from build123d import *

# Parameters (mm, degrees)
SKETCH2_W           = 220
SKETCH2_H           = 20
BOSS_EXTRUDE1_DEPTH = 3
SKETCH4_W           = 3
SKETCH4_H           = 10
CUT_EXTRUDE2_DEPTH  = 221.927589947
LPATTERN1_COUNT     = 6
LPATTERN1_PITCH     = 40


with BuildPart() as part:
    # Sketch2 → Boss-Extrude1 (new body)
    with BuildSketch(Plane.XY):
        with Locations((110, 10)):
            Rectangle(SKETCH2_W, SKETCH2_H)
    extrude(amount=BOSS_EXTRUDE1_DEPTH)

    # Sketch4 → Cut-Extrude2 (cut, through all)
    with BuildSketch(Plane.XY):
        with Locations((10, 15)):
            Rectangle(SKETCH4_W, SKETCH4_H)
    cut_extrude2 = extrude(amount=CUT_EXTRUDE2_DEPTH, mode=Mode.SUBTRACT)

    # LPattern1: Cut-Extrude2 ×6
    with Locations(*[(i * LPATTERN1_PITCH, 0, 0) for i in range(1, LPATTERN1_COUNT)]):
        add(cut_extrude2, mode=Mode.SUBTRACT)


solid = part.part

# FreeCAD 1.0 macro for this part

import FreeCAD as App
import Part
import Sketcher

V = App.Vector
Q = App.Units.Quantity

doc = App.newDocument("Part")
params = doc.addObject("Spreadsheet::Sheet", "Params")
for row, (alias, value) in enumerate([
    ("sketch1_width", "220 mm"),
    ("sketch1_height", "20 mm"),
    ("pad1_length", "3 mm"),
    ("sketch2_width", "3 mm"),
    ("sketch2_height", "10 mm"),
    ("linearpattern_pitch", "40 mm"),
], start=1):
    params.set(f"A{row}", alias)
    params.set(f"B{row}", "=" + value)
    params.setAlias(f"B{row}", alias)

body = doc.addObject("PartDesign::Body", "Body")

sketch1 = doc.addObject("Sketcher::SketchObject", "Sketch")
body.addObject(sketch1)
sketch1.AttachmentSupport = (doc.XY_Plane, [""])
sketch1.MapMode = "FlatFace"
sketch1.addGeometry([
    Part.LineSegment(V(0, 20, 0), V(0, 0, 0)),
    Part.LineSegment(V(0, 0, 0), V(220, 0, 0)),
    Part.LineSegment(V(220, 0, 0), V(220, 20, 0)),
    Part.LineSegment(V(220, 20, 0), V(0, 20, 0)),
], False)
sketch1.addConstraint([
    Sketcher.Constraint("Coincident", 0, 2, 1, 1),
    Sketcher.Constraint("Coincident", 1, 2, 2, 1),
    Sketcher.Constraint("Coincident", 2, 2, 3, 1),
    Sketcher.Constraint("Coincident", 3, 2, 0, 1),
    Sketcher.Constraint("Vertical", 0),
    Sketcher.Constraint("Horizontal", 1),
    Sketcher.Constraint("Vertical", 2),
    Sketcher.Constraint("Horizontal", 3),
    Sketcher.Constraint("Coincident", 0, 2, -1, 1),
    Sketcher.Constraint("DistanceX", 1, 1, 1, 2, Q("220 mm")),
    Sketcher.Constraint("DistanceY", 0, 2, 0, 1, Q("20 mm")),
])
sketch1.setExpression("Constraints[9]", "Params.sketch1_width")
sketch1.setExpression("Constraints[10]", "Params.sketch1_height")
pad1 = doc.addObject("PartDesign::Pad", "Pad")
body.addObject(pad1)
pad1.Profile = sketch1
pad1.setExpression("Length", "Params.pad1_length")

sketch2 = doc.addObject("Sketcher::SketchObject", "Sketch001")
body.addObject(sketch2)
sketch2.AttachmentSupport = (doc.XY_Plane, [""])
sketch2.MapMode = "FlatFace"
sketch2.addGeometry([
    Part.LineSegment(V(8.5, 20, 0), V(8.5, 10, 0)),
    Part.LineSegment(V(8.5, 10, 0), V(11.5, 10, 0)),
    Part.LineSegment(V(11.5, 10, 0), V(11.5, 20, 0)),
    Part.LineSegment(V(11.5, 20, 0), V(8.5, 20, 0)),
], False)
sketch2.addConstraint([
    Sketcher.Constraint("Coincident", 0, 2, 1, 1),
    Sketcher.Constraint("Coincident", 1, 2, 2, 1),
    Sketcher.Constraint("Coincident", 2, 2, 3, 1),
    Sketcher.Constraint("Coincident", 3, 2, 0, 1),
    Sketcher.Constraint("Vertical", 0),
    Sketcher.Constraint("Horizontal", 1),
    Sketcher.Constraint("Vertical", 2),
    Sketcher.Constraint("Horizontal", 3),
    Sketcher.Constraint("DistanceX", 1, 1, 1, 2, Q("3 mm")),
    Sketcher.Constraint("DistanceY", 0, 2, 0, 1, Q("10 mm")),
    Sketcher.Constraint("DistanceY", -1, 1, 0, 2, Q("10 mm")),
    Sketcher.Constraint("DistanceX", -1, 1, 0, 2, Q("8.5 mm")),
])
sketch2.setExpression("Constraints[8]", "Params.sketch2_width")
sketch2.setExpression("Constraints[9]", "Params.sketch2_height")
pocket1 = doc.addObject("PartDesign::Pocket", "Pocket")
body.addObject(pocket1)
pocket1.Profile = sketch2
pocket1.Type = "ThroughAll"
pocket1.Reversed = True
doc.recompute()

linearpattern = doc.addObject("PartDesign::LinearPattern", "LinearPattern")
body.addObject(linearpattern)
linearpattern.Originals = [pocket1]
linearpattern.Direction = (doc.X_Axis, [""])
linearpattern.Mode = "offset"
linearpattern.setExpression("Offset", "Params.linearpattern_pitch")
linearpattern.Occurrences = 6
body.Tip = linearpattern

doc.recompute()
